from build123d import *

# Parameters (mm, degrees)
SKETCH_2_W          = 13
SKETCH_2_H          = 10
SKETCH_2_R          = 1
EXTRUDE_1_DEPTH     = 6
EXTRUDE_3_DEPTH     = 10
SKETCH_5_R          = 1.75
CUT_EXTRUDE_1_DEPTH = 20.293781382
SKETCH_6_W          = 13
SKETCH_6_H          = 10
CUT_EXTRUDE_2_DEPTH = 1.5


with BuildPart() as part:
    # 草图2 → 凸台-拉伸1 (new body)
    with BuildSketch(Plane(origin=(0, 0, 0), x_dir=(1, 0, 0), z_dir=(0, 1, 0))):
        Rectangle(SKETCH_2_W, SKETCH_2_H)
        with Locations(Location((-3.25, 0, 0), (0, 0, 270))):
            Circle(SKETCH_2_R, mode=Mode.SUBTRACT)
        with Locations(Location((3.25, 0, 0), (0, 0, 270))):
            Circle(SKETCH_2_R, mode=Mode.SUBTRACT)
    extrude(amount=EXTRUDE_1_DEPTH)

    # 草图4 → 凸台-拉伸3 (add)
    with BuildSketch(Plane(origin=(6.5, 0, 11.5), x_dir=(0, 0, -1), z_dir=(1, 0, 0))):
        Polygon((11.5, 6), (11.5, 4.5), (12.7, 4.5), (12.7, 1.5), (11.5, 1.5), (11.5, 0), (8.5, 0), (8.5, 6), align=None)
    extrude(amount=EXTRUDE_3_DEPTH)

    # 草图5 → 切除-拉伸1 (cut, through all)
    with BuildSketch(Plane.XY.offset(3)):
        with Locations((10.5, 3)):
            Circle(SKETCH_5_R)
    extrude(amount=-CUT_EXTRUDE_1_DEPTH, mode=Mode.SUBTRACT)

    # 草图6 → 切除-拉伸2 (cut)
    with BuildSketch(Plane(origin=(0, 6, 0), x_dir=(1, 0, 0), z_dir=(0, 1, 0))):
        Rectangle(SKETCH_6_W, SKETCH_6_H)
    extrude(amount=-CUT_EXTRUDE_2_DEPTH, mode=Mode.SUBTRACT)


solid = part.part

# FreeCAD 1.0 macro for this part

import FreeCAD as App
import Part
import Sketcher
from FreeCAD import Vector
Q = App.Units.Quantity

doc = App.newDocument("Part")
params = doc.addObject("Spreadsheet::Sheet", "Params")
for row, (alias, value) in enumerate([
    ("sketch1_diameter", "2 mm"),
    ("sketch1_width", "13 mm"),
    ("sketch1_height", "10 mm"),
    ("pad1_length", "6 mm"),
    ("sketch2_width", "6 mm"),
    ("sketch2_width2", "3 mm"),
    ("sketch2_height", "1.2 mm"),
    ("pad2_length", "10 mm"),
    ("sketch3_diameter", "3.5 mm"),
    ("sketch4_width", "13 mm"),
    ("sketch4_height", "10 mm"),
    ("pocket2_length", "1.5 mm"),
], start=1):
    params.set(f"A{row}", alias)
    params.set(f"B{row}", "=" + value)
    params.setAlias(f"B{row}", alias)

body = doc.addObject("PartDesign::Body", "Body")

sketch1 = body.newObject("Sketcher::SketchObject", "Sketch")
sketch1.AttachmentSupport = (doc.getObject("XZ_Plane"), [""])
sketch1.MapMode = "FlatFace"
sketch1.addGeometry(Part.LineSegment(Vector(-6.5, -5, 0), Vector(-6.5, 5, 0)), False)
sketch1.addGeometry(Part.LineSegment(Vector(-6.5, 5, 0), Vector(6.5, 5, 0)), False)
sketch1.addGeometry(Part.LineSegment(Vector(6.5, 5, 0), Vector(6.5, -5, 0)), False)
sketch1.addGeometry(Part.LineSegment(Vector(6.5, -5, 0), Vector(-6.5, -5, 0)), False)
sketch1.addGeometry(Part.Circle(Vector(-3.2, 0, 0), Vector(0, 0, 1), 1), False)
sketch1.addGeometry(Part.Circle(Vector(3.2, 0, 0), Vector(0, 0, 1), 1), False)
sketch1.addConstraint(Sketcher.Constraint("Coincident", 0, 2, 1, 1))
sketch1.addConstraint(Sketcher.Constraint("Coincident", 1, 2, 2, 1))
sketch1.addConstraint(Sketcher.Constraint("Coincident", 2, 2, 3, 1))
sketch1.addConstraint(Sketcher.Constraint("Coincident", 3, 2, 0, 1))
sketch1.addConstraint(Sketcher.Constraint("Vertical", 0))
sketch1.addConstraint(Sketcher.Constraint("Horizontal", 1))
sketch1.addConstraint(Sketcher.Constraint("Vertical", 2))
sketch1.addConstraint(Sketcher.Constraint("Horizontal", 3))
sketch1.addConstraint(Sketcher.Constraint("Equal", 4, 5))
sketch1.addConstraint(Sketcher.Constraint("Symmetric", 4, 3, 5, 3, -1, 1))
sketch1.addConstraint(Sketcher.Constraint("Symmetric", 0, 2, 2, 2, -1, 1))
sketch1.addConstraint(Sketcher.Constraint("PointOnObject", 4, 3, -1))
sketch1.addConstraint(Sketcher.Constraint("Diameter", 4, Q("2 mm")))
sketch1.addConstraint(Sketcher.Constraint("DistanceX", 1, 1, 1, 2, Q("13 mm")))
sketch1.addConstraint(Sketcher.Constraint("DistanceY", 0, 1, 0, 2, Q("10 mm")))
sketch1.addConstraint(Sketcher.Constraint("DistanceX", 4, 3, 5, 3, Q("6.5 mm")))
sketch1.setExpression("Constraints[12]", "Params.sketch1_diameter")
sketch1.setExpression("Constraints[13]", "Params.sketch1_width")
sketch1.setExpression("Constraints[14]", "Params.sketch1_height")
pad1 = body.newObject("PartDesign::Pad", "Pad")
pad1.Profile = sketch1
pad1.setExpression("Length", "Params.pad1_length")
pad1.Reversed = True

sketch2 = body.newObject("Sketcher::SketchObject", "Sketch001")
sketch2.AttachmentSupport = (doc.getObject("YZ_Plane"), [""])
sketch2.MapMode = "FlatFace"
sketch2.AttachmentOffset = App.Placement(Vector(0, 0, 6.5), App.Rotation())
sketch2.addGeometry(Part.LineSegment(Vector(4.5, 0, 0), Vector(6, 0, 0)), False)
sketch2.addGeometry(Part.LineSegment(Vector(6, 0, 0), Vector(6, 3, 0)), False)
sketch2.addGeometry(Part.LineSegment(Vector(6, 3, 0), Vector(0, 3, 0)), False)
sketch2.addGeometry(Part.LineSegment(Vector(0, 3, 0), Vector(0, 0, 0)), False)
sketch2.addGeometry(Part.LineSegment(Vector(0, 0, 0), Vector(1.5, 0, 0)), False)
sketch2.addGeometry(Part.LineSegment(Vector(1.5, 0, 0), Vector(1.5, -1.2, 0)), False)
sketch2.addGeometry(Part.LineSegment(Vector(1.5, -1.2, 0), Vector(4.5, -1.2, 0)), False)
sketch2.addGeometry(Part.LineSegment(Vector(4.5, -1.2, 0), Vector(4.5, 0, 0)), False)
sketch2.addConstraint(Sketcher.Constraint("Coincident", 0, 2, 1, 1))
sketch2.addConstraint(Sketcher.Constraint("Coincident", 1, 2, 2, 1))
sketch2.addConstraint(Sketcher.Constraint("Coincident", 2, 2, 3, 1))
sketch2.addConstraint(Sketcher.Constraint("Coincident", 3, 2, 4, 1))
sketch2.addConstraint(Sketcher.Constraint("Coincident", 4, 2, 5, 1))
sketch2.addConstraint(Sketcher.Constraint("Coincident", 5, 2, 6, 1))
sketch2.addConstraint(Sketcher.Constraint("Coincident", 6, 2, 7, 1))
sketch2.addConstraint(Sketcher.Constraint("Coincident", 7, 2, 0, 1))
sketch2.addConstraint(Sketcher.Constraint("Horizontal", 0))
sketch2.addConstraint(Sketcher.Constraint("Vertical", 1))
sketch2.addConstraint(Sketcher.Constraint("Horizontal", 2))
sketch2.addConstraint(Sketcher.Constraint("Vertical", 3))
sketch2.addConstraint(Sketcher.Constraint("Horizontal", 4))
sketch2.addConstraint(Sketcher.Constraint("Vertical", 5))
sketch2.addConstraint(Sketcher.Constraint("Horizontal", 6))
sketch2.addConstraint(Sketcher.Constraint("Vertical", 7))
sketch2.addConstraint(Sketcher.Constraint("Coincident", 3, 2, -1, 1))
sketch2.addConstraint(Sketcher.Constraint("PointOnObject", 0, 2, -1))
sketch2.addConstraint(Sketcher.Constraint("Equal", 0, 4))
sketch2.addConstraint(Sketcher.Constraint("Equal", 6, 1))
sketch2.addConstraint(Sketcher.Constraint("DistanceX", 2, 2, 2, 1, Q("6 mm")))
sketch2.addConstraint(Sketcher.Constraint("DistanceX", 6, 1, 6, 2, Q("3 mm")))
sketch2.addConstraint(Sketcher.Constraint("DistanceY", 5, 2, 5, 1, Q("1.2 mm")))
sketch2.setExpression("Constraints[20]", "Params.sketch2_width")
sketch2.setExpression("Constraints[21]", "Params.sketch2_width2")
sketch2.setExpression("Constraints[22]", "Params.sketch2_height")
pad2 = body.newObject("PartDesign::Pad", "Pad001")
pad2.Profile = sketch2
pad2.setExpression("Length", "Params.pad2_length")

sketch3 = body.newObject("Sketcher::SketchObject", "Sketch002")
sketch3.AttachmentSupport = (doc.getObject("XY_Plane"), [""])
sketch3.MapMode = "FlatFace"
sketch3.AttachmentOffset = App.Placement(Vector(0, 0, 3), App.Rotation())
sketch3.addGeometry(Part.Circle(Vector(10.5, 3, 0), Vector(0, 0, 1), 1.8), False)
sketch3.addConstraint(Sketcher.Constraint("Diameter", 0, Q("3.5 mm")))
sketch3.addConstraint(Sketcher.Constraint("DistanceY", -1, 1, 0, 3, Q("3 mm")))
sketch3.addConstraint(Sketcher.Constraint("DistanceX", -1, 1, 0, 3, Q("10.5 mm")))
sketch3.setExpression("Constraints[0]", "Params.sketch3_diameter")
pocket1 = body.newObject("PartDesign::Pocket", "Pocket")
pocket1.Profile = sketch3
pocket1.Type = "ThroughAll"

sketch4 = body.newObject("Sketcher::SketchObject", "Sketch003")
sketch4.AttachmentSupport = (doc.getObject("XZ_Plane"), [""])
sketch4.MapMode = "FlatFace"
sketch4.AttachmentOffset = App.Placement(Vector(0, 0, -6), App.Rotation())
sketch4.addGeometry(Part.LineSegment(Vector(-6, -5, 0), Vector(-6, 5, 0)), False)
sketch4.addGeometry(Part.LineSegment(Vector(-6, 5, 0), Vector(6, 5, 0)), False)
sketch4.addGeometry(Part.LineSegment(Vector(6, 5, 0), Vector(6, -5, 0)), False)
sketch4.addGeometry(Part.LineSegment(Vector(6, -5, 0), Vector(-6, -5, 0)), False)
sketch4.addConstraint(Sketcher.Constraint("Coincident", 0, 2, 1, 1))
sketch4.addConstraint(Sketcher.Constraint("Coincident", 1, 2, 2, 1))
sketch4.addConstraint(Sketcher.Constraint("Coincident", 2, 2, 3, 1))
sketch4.addConstraint(Sketcher.Constraint("Coincident", 3, 2, 0, 1))
sketch4.addConstraint(Sketcher.Constraint("Vertical", 0))
sketch4.addConstraint(Sketcher.Constraint("Horizontal", 1))
sketch4.addConstraint(Sketcher.Constraint("Vertical", 2))
sketch4.addConstraint(Sketcher.Constraint("Horizontal", 3))
sketch4.addConstraint(Sketcher.Constraint("Symmetric", 0, 2, 2, 2, -1, 1))
sketch4.addConstraint(Sketcher.Constraint("DistanceX", 1, 1, 1, 2, Q("13 mm")))
sketch4.addConstraint(Sketcher.Constraint("DistanceY", 0, 1, 0, 2, Q("10 mm")))
sketch4.setExpression("Constraints[9]", "Params.sketch4_width")
sketch4.setExpression("Constraints[10]", "Params.sketch4_height")
pocket2 = body.newObject("PartDesign::Pocket", "Pocket001")
pocket2.Profile = sketch4
pocket2.setExpression("Length", "Params.pocket2_length")
pocket2.Reversed = True

doc.recompute()
